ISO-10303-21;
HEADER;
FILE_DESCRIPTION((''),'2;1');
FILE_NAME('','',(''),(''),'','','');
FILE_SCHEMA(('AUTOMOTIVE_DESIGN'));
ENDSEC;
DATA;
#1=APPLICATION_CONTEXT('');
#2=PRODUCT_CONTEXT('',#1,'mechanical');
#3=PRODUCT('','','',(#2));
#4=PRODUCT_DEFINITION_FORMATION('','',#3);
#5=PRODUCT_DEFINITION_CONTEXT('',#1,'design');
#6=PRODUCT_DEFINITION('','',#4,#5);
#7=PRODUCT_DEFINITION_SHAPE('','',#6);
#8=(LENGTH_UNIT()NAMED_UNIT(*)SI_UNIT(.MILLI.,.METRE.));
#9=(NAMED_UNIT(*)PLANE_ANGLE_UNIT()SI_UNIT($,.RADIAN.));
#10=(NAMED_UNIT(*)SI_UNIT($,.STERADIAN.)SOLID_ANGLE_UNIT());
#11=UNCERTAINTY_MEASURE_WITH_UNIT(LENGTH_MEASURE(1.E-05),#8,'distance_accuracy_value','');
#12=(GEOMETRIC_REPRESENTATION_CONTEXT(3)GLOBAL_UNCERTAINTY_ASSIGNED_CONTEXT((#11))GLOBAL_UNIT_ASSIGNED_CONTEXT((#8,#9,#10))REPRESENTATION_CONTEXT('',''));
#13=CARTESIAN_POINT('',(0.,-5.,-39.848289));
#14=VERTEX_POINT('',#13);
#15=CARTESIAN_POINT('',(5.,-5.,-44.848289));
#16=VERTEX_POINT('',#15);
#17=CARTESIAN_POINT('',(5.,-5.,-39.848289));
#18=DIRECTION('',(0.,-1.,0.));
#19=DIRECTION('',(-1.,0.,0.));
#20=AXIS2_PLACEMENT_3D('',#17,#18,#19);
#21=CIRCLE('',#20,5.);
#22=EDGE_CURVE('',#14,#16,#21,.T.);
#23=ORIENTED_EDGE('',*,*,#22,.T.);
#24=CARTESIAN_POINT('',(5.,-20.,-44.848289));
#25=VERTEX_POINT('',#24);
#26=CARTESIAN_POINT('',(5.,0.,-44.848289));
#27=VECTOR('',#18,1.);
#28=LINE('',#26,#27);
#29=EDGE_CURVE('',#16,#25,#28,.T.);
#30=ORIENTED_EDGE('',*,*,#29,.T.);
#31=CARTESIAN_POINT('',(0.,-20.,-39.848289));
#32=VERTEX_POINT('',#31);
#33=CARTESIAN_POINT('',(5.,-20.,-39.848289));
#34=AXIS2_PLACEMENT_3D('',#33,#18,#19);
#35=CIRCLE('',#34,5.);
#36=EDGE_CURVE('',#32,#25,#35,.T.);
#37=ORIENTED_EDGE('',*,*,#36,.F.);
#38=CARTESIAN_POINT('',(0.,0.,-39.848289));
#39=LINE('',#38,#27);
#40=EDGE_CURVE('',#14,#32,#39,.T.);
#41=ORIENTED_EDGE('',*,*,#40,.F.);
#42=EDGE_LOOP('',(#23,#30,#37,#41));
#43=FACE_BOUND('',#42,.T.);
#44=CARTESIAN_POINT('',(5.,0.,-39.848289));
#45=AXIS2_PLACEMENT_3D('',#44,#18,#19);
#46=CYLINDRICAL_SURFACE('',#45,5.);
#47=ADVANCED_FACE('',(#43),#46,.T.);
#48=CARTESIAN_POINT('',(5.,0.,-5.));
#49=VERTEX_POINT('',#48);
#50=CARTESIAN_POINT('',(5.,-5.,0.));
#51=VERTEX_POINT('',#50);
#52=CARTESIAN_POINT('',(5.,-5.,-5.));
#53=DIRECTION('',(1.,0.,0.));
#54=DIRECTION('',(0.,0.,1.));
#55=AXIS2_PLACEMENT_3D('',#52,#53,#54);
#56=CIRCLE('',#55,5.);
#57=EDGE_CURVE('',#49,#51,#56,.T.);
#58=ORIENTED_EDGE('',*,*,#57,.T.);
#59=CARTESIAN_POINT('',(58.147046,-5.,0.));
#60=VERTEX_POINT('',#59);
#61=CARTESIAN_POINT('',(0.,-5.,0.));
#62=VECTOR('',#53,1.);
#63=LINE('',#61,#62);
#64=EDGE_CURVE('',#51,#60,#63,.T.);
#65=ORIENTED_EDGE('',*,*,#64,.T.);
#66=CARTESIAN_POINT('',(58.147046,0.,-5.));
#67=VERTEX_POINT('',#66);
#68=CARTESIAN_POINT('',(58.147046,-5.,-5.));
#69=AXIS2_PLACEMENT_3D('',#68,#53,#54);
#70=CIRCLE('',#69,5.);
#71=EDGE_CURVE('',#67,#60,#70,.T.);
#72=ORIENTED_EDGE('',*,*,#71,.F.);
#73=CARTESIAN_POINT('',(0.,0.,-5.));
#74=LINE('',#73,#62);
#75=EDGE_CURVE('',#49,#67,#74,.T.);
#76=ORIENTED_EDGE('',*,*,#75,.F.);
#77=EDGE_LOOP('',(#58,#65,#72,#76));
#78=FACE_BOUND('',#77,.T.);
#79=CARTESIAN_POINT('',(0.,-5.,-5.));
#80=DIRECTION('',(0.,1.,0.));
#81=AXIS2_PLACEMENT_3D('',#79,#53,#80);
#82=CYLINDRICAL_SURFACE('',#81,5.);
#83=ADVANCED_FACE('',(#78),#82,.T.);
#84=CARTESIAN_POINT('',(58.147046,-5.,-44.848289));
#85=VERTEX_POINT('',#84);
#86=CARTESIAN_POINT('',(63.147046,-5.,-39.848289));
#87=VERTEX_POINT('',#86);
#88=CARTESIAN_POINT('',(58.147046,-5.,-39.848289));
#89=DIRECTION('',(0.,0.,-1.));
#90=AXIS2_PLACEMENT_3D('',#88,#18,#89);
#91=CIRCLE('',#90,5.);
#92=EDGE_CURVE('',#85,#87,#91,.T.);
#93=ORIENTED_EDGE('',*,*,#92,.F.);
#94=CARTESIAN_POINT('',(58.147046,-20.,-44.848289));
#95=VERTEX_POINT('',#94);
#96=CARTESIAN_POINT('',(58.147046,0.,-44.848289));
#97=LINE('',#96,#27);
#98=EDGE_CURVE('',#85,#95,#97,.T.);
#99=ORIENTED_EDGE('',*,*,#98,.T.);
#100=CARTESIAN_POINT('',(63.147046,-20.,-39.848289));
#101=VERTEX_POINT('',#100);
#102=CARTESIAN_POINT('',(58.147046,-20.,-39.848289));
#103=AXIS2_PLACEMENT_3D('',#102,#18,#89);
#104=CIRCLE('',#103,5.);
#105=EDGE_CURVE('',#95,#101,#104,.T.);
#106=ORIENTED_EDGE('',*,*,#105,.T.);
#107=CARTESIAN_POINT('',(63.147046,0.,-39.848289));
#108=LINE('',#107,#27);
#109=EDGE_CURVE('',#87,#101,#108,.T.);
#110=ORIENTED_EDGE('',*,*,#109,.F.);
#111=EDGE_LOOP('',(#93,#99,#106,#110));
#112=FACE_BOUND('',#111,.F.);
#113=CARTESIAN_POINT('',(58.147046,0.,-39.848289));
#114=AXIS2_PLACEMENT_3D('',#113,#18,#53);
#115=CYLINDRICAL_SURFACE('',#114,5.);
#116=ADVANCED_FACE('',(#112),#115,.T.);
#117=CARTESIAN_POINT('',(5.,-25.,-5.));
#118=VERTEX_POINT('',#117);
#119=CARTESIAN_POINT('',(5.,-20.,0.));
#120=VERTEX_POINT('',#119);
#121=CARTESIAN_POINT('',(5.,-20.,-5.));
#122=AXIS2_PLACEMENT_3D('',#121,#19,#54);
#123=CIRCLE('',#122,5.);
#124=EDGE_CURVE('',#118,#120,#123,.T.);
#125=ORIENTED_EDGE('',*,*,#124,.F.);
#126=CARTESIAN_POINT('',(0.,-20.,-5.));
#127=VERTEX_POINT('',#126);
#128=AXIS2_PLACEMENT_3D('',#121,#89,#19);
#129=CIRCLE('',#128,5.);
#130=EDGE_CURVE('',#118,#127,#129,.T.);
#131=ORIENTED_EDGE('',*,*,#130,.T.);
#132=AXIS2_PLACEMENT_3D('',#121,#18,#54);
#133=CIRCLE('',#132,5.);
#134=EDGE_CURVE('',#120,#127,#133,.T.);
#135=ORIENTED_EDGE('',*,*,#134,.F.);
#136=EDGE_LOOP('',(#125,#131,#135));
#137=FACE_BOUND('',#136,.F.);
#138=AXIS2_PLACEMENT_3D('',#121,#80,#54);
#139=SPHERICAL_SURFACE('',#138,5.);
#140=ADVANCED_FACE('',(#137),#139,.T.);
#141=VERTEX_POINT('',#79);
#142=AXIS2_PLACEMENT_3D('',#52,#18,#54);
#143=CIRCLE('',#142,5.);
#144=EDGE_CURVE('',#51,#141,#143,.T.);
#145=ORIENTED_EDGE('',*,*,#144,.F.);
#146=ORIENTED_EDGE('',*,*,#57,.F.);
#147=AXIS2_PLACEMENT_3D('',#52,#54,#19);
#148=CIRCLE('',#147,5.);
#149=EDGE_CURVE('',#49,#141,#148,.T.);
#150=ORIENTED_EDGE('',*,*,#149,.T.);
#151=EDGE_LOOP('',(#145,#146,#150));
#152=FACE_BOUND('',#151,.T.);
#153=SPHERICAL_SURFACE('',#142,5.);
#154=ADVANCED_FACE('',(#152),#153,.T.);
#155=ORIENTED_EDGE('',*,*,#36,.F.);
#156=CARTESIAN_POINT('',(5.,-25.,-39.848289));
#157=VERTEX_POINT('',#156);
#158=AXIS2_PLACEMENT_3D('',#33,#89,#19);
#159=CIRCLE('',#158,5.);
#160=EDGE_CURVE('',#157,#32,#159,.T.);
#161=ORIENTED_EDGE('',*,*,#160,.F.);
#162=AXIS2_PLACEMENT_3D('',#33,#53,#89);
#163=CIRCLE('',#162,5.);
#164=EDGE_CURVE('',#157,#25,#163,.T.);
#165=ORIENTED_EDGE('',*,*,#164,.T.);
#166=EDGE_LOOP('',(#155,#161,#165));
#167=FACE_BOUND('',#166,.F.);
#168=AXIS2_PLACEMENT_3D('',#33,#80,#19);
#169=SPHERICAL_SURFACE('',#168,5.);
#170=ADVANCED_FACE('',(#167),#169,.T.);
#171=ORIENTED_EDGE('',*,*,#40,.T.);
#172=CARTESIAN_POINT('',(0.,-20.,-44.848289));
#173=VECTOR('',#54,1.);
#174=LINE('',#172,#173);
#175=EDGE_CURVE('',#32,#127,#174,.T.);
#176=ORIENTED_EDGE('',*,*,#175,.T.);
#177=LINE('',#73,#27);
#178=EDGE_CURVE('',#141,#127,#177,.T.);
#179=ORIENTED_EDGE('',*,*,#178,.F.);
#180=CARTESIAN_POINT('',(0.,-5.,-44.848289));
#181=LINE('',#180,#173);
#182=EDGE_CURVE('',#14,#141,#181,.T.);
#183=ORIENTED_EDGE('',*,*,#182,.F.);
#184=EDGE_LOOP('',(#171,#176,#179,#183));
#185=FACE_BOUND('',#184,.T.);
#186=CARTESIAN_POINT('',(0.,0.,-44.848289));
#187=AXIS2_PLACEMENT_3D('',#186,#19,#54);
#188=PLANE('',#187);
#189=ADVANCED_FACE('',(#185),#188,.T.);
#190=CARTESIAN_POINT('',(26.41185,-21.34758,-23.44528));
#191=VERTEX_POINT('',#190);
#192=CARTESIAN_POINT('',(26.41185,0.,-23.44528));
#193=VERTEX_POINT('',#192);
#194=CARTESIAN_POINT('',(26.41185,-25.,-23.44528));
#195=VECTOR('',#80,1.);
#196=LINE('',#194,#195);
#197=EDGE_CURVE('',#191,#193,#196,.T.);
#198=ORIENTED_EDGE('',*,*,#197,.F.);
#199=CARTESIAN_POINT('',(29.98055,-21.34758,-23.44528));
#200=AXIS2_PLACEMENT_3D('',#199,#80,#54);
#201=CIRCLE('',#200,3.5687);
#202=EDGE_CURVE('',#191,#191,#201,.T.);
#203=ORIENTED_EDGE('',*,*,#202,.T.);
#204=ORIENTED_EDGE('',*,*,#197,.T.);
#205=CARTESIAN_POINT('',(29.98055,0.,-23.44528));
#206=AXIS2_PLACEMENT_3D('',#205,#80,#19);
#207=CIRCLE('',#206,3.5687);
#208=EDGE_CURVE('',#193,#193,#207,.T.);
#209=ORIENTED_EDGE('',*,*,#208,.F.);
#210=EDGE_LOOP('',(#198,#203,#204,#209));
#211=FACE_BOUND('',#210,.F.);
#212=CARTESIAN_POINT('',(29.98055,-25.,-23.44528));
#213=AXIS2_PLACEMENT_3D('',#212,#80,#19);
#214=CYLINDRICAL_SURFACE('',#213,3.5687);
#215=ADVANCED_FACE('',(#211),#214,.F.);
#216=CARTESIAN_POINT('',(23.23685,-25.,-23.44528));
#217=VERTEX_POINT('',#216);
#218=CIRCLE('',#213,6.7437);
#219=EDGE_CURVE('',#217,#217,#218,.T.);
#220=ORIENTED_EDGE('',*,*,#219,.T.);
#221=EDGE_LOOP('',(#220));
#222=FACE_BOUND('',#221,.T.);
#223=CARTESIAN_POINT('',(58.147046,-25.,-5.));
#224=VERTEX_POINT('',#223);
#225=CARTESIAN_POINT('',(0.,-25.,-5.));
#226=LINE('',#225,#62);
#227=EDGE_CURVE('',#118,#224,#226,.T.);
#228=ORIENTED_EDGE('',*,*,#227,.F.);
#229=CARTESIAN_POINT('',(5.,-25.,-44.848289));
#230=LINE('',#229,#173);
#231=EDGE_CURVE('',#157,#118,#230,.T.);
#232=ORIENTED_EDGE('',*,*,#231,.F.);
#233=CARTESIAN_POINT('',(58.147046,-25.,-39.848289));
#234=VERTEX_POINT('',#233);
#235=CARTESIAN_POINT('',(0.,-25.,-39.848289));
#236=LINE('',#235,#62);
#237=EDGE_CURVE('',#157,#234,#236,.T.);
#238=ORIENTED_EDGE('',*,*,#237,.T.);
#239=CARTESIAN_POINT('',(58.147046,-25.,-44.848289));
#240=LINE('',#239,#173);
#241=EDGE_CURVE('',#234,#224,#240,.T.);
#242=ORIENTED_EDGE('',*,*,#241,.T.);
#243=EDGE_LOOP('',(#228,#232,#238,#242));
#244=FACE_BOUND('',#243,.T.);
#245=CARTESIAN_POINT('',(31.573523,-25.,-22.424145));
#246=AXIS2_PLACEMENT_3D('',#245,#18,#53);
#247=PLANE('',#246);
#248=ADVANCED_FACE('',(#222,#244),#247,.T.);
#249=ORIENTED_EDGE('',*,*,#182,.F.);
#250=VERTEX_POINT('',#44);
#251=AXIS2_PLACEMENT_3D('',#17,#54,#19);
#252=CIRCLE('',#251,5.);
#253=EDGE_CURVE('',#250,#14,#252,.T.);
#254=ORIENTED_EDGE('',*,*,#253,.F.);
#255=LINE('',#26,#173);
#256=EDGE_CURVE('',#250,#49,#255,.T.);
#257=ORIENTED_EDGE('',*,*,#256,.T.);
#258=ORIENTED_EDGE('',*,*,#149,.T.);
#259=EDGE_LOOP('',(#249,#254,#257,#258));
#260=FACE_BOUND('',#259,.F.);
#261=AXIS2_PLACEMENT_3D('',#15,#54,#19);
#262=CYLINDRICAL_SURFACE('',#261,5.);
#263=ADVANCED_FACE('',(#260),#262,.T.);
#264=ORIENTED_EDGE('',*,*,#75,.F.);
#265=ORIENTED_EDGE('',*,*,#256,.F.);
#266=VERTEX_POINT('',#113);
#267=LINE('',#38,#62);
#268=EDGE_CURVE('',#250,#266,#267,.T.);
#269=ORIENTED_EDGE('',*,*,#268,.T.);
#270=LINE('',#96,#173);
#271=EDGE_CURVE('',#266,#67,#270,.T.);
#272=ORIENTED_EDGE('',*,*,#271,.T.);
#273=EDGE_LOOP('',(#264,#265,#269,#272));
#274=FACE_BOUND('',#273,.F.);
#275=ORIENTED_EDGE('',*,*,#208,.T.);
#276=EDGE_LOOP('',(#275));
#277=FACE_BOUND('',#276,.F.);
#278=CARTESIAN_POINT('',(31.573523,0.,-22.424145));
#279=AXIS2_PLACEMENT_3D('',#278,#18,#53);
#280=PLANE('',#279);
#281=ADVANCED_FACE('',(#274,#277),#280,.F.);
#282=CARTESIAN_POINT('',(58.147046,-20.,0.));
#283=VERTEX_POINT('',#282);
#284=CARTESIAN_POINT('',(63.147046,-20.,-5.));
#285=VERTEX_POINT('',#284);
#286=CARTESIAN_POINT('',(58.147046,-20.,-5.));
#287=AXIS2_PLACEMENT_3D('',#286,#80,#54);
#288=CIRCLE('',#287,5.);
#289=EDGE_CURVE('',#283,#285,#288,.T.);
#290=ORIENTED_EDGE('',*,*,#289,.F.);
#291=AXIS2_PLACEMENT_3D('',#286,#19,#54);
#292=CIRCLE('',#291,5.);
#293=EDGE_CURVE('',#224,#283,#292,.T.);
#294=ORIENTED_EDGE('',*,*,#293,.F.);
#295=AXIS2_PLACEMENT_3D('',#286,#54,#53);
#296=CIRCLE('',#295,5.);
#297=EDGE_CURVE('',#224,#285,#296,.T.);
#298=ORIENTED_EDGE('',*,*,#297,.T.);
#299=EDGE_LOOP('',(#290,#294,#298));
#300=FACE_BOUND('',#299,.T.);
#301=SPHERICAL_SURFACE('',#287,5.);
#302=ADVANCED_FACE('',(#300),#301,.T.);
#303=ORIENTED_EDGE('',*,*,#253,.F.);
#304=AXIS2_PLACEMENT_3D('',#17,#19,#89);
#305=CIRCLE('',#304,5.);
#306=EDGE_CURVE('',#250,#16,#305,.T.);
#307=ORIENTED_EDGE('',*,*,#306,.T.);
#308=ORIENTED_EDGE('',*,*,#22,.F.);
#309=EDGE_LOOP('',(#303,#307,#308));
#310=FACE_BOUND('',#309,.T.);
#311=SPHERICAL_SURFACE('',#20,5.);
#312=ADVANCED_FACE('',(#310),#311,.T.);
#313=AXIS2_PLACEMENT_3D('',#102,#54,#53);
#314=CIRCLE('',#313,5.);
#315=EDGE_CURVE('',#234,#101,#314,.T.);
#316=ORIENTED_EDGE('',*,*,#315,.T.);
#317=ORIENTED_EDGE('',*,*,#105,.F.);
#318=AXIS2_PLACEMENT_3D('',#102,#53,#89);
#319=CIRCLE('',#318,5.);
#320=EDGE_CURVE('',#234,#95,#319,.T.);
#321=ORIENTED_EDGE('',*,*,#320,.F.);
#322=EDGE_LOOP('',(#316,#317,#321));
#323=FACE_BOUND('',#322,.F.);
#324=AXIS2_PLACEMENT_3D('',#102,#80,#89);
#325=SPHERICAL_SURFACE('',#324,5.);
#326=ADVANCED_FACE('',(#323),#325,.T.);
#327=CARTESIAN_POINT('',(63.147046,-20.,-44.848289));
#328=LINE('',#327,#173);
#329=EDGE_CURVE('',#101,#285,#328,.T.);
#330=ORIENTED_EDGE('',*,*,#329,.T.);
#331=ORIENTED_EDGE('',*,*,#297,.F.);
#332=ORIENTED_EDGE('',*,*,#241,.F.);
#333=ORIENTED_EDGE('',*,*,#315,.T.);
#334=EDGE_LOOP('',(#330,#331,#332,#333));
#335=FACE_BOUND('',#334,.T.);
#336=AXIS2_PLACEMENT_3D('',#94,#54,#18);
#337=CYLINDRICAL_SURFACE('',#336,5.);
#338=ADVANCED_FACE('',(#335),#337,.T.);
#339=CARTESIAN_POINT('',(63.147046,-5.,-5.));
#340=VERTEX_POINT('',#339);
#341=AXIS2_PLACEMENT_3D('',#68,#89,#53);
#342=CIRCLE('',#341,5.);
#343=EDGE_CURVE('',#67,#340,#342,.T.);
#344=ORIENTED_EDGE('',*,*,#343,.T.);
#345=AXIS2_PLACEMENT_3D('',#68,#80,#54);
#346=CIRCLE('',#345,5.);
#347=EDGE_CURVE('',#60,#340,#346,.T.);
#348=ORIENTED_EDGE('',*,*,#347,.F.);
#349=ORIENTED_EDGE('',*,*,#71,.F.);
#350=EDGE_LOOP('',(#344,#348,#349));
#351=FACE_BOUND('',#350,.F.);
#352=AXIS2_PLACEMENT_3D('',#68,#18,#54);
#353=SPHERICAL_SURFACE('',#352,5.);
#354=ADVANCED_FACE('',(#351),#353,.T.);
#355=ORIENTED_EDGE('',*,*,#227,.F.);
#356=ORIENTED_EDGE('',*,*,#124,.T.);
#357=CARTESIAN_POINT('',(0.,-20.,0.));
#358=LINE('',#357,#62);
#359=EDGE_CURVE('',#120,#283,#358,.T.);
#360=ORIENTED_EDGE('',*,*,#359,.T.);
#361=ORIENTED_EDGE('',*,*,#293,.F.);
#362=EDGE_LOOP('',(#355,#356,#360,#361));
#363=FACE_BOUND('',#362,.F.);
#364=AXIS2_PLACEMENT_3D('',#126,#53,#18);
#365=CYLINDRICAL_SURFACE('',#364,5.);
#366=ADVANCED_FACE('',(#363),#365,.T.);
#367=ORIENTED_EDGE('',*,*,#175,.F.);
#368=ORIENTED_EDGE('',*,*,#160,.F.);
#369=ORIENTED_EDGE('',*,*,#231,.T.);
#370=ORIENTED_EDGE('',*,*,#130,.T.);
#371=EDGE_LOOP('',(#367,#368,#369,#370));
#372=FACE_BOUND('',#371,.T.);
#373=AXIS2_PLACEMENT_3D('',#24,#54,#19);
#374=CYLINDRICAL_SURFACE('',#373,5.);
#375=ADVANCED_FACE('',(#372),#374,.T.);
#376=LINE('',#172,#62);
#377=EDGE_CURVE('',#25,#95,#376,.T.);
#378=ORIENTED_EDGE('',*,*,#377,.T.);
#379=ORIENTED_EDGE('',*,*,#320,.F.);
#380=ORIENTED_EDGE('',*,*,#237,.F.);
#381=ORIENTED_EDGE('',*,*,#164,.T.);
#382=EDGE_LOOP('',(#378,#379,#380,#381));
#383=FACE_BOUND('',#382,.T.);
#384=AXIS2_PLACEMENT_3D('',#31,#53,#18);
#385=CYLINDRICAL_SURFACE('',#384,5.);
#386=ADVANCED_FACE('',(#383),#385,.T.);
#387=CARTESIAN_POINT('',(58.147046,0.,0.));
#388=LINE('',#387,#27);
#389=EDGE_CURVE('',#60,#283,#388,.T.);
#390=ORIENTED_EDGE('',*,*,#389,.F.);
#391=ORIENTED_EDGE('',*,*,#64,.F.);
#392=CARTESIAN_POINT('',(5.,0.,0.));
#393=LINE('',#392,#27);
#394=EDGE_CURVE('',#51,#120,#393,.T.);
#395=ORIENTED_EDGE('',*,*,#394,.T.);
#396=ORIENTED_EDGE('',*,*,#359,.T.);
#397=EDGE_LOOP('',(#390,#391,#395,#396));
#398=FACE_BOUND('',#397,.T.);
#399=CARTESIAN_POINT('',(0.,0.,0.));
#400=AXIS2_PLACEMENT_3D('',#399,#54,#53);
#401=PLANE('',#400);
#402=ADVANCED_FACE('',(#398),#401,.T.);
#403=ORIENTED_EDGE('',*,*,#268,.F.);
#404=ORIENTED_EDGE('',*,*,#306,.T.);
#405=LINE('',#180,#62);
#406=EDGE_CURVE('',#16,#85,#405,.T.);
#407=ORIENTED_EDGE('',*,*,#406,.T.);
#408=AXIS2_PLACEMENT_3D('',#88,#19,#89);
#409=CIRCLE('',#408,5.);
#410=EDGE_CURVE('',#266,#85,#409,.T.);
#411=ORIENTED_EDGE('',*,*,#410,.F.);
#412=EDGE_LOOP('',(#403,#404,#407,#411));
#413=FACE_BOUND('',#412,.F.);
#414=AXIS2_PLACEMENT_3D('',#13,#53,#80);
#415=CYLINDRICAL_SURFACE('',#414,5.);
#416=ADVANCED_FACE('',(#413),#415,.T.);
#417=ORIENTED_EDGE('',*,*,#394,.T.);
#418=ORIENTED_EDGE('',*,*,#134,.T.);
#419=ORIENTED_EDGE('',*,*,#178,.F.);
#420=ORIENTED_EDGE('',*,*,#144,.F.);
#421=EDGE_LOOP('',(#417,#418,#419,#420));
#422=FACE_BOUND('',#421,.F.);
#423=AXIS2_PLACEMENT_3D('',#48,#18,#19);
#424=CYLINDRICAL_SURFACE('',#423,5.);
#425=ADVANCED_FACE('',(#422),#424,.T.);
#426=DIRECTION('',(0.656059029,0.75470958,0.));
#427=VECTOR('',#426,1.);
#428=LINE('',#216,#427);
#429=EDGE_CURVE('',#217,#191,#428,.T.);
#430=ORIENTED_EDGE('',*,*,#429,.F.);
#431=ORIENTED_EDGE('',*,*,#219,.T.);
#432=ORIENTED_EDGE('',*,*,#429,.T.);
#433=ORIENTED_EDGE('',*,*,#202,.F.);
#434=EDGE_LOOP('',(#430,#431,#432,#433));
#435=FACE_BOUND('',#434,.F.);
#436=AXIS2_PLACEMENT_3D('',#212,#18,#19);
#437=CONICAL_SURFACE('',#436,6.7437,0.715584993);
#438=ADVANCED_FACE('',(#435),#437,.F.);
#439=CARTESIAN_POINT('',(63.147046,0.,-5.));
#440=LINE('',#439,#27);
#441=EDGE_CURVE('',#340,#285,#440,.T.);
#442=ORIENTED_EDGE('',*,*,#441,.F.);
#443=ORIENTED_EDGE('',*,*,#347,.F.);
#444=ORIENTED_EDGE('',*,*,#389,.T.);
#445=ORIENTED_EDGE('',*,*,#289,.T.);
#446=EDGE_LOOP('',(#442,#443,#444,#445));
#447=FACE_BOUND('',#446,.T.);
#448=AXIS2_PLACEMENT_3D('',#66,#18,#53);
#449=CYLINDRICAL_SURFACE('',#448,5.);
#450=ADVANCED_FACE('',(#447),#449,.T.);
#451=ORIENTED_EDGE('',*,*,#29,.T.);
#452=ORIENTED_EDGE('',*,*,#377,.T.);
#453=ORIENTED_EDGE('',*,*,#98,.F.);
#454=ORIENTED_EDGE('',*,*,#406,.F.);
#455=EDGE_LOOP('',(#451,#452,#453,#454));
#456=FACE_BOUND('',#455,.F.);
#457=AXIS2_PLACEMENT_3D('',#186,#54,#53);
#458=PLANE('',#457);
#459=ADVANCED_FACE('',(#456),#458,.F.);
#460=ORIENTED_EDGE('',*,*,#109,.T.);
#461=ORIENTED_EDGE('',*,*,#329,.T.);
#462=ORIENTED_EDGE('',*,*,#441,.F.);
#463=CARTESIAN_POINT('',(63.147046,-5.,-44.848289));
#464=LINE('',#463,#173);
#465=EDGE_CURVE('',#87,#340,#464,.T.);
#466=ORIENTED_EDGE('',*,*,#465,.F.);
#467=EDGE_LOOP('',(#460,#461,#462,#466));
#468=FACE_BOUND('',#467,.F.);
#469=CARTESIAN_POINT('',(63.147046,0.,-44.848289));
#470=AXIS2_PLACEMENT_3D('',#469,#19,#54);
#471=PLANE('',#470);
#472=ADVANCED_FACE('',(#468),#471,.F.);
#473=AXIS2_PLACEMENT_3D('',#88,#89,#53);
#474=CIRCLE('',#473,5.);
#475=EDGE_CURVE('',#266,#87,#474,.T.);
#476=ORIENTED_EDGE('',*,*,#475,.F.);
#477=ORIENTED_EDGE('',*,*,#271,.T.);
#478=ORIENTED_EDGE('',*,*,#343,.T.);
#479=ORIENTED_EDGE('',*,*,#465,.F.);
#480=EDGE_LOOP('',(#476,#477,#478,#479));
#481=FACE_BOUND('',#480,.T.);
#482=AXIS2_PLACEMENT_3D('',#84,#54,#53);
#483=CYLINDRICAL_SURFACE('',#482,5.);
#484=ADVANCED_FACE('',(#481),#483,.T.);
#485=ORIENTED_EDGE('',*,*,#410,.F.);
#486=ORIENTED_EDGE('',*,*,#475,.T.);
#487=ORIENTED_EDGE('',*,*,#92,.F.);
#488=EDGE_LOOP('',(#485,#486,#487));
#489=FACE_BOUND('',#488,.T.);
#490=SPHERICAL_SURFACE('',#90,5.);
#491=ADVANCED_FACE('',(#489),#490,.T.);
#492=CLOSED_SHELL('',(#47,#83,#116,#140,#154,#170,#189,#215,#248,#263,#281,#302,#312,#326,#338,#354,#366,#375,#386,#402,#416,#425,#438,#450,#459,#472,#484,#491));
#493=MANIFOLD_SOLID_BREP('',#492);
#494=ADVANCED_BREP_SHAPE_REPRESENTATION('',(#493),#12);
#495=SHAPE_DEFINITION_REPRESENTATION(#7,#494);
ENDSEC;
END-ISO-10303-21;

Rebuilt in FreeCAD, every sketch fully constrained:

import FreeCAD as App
import Part
import Sketcher
from FreeCAD import Vector


def edges_at(feature, points):
    """Names of the edges that pass closest to the given points."""
    edges = feature.Shape.Edges
    near = lambda p: min(range(len(edges)), key=lambda i: edges[i].distToShape(Part.Vertex(*p))[0])
    return sorted({f"Edge{near(p) + 1}" for p in points})

doc = App.newDocument("Part")
body = doc.addObject("PartDesign::Body", "Body")

sketch1 = doc.addObject("Sketcher::SketchObject", "Sketch")
body.addObject(sketch1)
sketch1.AttachmentSupport = (doc.XZ_Plane, [""])
sketch1.MapMode = "FlatFace"
sketch1.addGeometry([
    Part.LineSegment(Vector(0, 0, 0), Vector(0, -45, 0)),
    Part.LineSegment(Vector(0, -45, 0), Vector(63, -45, 0)),
    Part.LineSegment(Vector(63, -45, 0), Vector(63, 0, 0)),
    Part.LineSegment(Vector(63, 0, 0), Vector(0, 0, 0)),
], False)
sketch1.addConstraint([
    Sketcher.Constraint("Coincident", 0, 2, 1, 1),
    Sketcher.Constraint("Coincident", 1, 2, 2, 1),
    Sketcher.Constraint("Coincident", 2, 2, 3, 1),
    Sketcher.Constraint("Coincident", 3, 2, 0, 1),
    Sketcher.Constraint("Vertical", 0),
    Sketcher.Constraint("Horizontal", 1),
    Sketcher.Constraint("Vertical", 2),
    Sketcher.Constraint("Horizontal", 3),
    Sketcher.Constraint("Coincident", 3, 2, -1, 1),
    Sketcher.Constraint("DistanceY", 0, 2, 0, 1, 44.848289),
    Sketcher.Constraint("DistanceX", 1, 1, 1, 2, 63.147046),
])
pad1 = doc.addObject("PartDesign::Pad", "Pad")
body.addObject(pad1)
pad1.Profile = sketch1
pad1.Length = 25

sketch2 = doc.addObject("Sketcher::SketchObject", "Sketch001")
body.addObject(sketch2)
sketch2.AttachmentSupport = (doc.XZ_Plane, [""])
sketch2.MapMode = "FlatFace"
sketch2.AttachmentOffset = App.Placement(Vector(0, 0, 25), App.Rotation())
sketch2.addGeometry(Part.Circle(Vector(30, -23.4, 0), Vector(0, 0, 1), 3.6), False)
sketch2.addConstraint([
    Sketcher.Constraint("Diameter", 0, 7.1374),
    Sketcher.Constraint("DistanceX", -1, 1, 0, 3, 29.98055),
    Sketcher.Constraint("DistanceY", 0, 3, -1, 1, 23.44528),
])
doc.recompute()
hole = doc.addObject("PartDesign::Hole", "Hole")
body.addObject(hole)
hole.Profile = sketch2
hole.ThreadType = "None"
hole.Diameter = 7.1374
hole.DepthType = "ThroughAll"
hole.HoleCutType = "Countersink"
hole.HoleCutDiameter = 13.4874
hole.HoleCutCountersinkAngle = 82
doc.recompute()

fillet = doc.addObject("PartDesign::Fillet", "Fillet")
body.addObject(fillet)
fillet.Base = (hole, edges_at(hole, [
    (63.147, -12.5, 0),
    (0, -12.5, 0),
    (31.574, 0, 0),
    (31.574, -25, 0),
    (0, -12.5, -44.848),
    (0, 0, -22.424),
    (0, -25, -22.424),
    (63.147, -12.5, -44.848),
    (31.574, 0, -44.848),
    (31.574, -25, -44.848),
    (63.147, 0, -22.424),
    (63.147, -25, -22.424),
]))
fillet.Radius = 5

doc.recompute()
